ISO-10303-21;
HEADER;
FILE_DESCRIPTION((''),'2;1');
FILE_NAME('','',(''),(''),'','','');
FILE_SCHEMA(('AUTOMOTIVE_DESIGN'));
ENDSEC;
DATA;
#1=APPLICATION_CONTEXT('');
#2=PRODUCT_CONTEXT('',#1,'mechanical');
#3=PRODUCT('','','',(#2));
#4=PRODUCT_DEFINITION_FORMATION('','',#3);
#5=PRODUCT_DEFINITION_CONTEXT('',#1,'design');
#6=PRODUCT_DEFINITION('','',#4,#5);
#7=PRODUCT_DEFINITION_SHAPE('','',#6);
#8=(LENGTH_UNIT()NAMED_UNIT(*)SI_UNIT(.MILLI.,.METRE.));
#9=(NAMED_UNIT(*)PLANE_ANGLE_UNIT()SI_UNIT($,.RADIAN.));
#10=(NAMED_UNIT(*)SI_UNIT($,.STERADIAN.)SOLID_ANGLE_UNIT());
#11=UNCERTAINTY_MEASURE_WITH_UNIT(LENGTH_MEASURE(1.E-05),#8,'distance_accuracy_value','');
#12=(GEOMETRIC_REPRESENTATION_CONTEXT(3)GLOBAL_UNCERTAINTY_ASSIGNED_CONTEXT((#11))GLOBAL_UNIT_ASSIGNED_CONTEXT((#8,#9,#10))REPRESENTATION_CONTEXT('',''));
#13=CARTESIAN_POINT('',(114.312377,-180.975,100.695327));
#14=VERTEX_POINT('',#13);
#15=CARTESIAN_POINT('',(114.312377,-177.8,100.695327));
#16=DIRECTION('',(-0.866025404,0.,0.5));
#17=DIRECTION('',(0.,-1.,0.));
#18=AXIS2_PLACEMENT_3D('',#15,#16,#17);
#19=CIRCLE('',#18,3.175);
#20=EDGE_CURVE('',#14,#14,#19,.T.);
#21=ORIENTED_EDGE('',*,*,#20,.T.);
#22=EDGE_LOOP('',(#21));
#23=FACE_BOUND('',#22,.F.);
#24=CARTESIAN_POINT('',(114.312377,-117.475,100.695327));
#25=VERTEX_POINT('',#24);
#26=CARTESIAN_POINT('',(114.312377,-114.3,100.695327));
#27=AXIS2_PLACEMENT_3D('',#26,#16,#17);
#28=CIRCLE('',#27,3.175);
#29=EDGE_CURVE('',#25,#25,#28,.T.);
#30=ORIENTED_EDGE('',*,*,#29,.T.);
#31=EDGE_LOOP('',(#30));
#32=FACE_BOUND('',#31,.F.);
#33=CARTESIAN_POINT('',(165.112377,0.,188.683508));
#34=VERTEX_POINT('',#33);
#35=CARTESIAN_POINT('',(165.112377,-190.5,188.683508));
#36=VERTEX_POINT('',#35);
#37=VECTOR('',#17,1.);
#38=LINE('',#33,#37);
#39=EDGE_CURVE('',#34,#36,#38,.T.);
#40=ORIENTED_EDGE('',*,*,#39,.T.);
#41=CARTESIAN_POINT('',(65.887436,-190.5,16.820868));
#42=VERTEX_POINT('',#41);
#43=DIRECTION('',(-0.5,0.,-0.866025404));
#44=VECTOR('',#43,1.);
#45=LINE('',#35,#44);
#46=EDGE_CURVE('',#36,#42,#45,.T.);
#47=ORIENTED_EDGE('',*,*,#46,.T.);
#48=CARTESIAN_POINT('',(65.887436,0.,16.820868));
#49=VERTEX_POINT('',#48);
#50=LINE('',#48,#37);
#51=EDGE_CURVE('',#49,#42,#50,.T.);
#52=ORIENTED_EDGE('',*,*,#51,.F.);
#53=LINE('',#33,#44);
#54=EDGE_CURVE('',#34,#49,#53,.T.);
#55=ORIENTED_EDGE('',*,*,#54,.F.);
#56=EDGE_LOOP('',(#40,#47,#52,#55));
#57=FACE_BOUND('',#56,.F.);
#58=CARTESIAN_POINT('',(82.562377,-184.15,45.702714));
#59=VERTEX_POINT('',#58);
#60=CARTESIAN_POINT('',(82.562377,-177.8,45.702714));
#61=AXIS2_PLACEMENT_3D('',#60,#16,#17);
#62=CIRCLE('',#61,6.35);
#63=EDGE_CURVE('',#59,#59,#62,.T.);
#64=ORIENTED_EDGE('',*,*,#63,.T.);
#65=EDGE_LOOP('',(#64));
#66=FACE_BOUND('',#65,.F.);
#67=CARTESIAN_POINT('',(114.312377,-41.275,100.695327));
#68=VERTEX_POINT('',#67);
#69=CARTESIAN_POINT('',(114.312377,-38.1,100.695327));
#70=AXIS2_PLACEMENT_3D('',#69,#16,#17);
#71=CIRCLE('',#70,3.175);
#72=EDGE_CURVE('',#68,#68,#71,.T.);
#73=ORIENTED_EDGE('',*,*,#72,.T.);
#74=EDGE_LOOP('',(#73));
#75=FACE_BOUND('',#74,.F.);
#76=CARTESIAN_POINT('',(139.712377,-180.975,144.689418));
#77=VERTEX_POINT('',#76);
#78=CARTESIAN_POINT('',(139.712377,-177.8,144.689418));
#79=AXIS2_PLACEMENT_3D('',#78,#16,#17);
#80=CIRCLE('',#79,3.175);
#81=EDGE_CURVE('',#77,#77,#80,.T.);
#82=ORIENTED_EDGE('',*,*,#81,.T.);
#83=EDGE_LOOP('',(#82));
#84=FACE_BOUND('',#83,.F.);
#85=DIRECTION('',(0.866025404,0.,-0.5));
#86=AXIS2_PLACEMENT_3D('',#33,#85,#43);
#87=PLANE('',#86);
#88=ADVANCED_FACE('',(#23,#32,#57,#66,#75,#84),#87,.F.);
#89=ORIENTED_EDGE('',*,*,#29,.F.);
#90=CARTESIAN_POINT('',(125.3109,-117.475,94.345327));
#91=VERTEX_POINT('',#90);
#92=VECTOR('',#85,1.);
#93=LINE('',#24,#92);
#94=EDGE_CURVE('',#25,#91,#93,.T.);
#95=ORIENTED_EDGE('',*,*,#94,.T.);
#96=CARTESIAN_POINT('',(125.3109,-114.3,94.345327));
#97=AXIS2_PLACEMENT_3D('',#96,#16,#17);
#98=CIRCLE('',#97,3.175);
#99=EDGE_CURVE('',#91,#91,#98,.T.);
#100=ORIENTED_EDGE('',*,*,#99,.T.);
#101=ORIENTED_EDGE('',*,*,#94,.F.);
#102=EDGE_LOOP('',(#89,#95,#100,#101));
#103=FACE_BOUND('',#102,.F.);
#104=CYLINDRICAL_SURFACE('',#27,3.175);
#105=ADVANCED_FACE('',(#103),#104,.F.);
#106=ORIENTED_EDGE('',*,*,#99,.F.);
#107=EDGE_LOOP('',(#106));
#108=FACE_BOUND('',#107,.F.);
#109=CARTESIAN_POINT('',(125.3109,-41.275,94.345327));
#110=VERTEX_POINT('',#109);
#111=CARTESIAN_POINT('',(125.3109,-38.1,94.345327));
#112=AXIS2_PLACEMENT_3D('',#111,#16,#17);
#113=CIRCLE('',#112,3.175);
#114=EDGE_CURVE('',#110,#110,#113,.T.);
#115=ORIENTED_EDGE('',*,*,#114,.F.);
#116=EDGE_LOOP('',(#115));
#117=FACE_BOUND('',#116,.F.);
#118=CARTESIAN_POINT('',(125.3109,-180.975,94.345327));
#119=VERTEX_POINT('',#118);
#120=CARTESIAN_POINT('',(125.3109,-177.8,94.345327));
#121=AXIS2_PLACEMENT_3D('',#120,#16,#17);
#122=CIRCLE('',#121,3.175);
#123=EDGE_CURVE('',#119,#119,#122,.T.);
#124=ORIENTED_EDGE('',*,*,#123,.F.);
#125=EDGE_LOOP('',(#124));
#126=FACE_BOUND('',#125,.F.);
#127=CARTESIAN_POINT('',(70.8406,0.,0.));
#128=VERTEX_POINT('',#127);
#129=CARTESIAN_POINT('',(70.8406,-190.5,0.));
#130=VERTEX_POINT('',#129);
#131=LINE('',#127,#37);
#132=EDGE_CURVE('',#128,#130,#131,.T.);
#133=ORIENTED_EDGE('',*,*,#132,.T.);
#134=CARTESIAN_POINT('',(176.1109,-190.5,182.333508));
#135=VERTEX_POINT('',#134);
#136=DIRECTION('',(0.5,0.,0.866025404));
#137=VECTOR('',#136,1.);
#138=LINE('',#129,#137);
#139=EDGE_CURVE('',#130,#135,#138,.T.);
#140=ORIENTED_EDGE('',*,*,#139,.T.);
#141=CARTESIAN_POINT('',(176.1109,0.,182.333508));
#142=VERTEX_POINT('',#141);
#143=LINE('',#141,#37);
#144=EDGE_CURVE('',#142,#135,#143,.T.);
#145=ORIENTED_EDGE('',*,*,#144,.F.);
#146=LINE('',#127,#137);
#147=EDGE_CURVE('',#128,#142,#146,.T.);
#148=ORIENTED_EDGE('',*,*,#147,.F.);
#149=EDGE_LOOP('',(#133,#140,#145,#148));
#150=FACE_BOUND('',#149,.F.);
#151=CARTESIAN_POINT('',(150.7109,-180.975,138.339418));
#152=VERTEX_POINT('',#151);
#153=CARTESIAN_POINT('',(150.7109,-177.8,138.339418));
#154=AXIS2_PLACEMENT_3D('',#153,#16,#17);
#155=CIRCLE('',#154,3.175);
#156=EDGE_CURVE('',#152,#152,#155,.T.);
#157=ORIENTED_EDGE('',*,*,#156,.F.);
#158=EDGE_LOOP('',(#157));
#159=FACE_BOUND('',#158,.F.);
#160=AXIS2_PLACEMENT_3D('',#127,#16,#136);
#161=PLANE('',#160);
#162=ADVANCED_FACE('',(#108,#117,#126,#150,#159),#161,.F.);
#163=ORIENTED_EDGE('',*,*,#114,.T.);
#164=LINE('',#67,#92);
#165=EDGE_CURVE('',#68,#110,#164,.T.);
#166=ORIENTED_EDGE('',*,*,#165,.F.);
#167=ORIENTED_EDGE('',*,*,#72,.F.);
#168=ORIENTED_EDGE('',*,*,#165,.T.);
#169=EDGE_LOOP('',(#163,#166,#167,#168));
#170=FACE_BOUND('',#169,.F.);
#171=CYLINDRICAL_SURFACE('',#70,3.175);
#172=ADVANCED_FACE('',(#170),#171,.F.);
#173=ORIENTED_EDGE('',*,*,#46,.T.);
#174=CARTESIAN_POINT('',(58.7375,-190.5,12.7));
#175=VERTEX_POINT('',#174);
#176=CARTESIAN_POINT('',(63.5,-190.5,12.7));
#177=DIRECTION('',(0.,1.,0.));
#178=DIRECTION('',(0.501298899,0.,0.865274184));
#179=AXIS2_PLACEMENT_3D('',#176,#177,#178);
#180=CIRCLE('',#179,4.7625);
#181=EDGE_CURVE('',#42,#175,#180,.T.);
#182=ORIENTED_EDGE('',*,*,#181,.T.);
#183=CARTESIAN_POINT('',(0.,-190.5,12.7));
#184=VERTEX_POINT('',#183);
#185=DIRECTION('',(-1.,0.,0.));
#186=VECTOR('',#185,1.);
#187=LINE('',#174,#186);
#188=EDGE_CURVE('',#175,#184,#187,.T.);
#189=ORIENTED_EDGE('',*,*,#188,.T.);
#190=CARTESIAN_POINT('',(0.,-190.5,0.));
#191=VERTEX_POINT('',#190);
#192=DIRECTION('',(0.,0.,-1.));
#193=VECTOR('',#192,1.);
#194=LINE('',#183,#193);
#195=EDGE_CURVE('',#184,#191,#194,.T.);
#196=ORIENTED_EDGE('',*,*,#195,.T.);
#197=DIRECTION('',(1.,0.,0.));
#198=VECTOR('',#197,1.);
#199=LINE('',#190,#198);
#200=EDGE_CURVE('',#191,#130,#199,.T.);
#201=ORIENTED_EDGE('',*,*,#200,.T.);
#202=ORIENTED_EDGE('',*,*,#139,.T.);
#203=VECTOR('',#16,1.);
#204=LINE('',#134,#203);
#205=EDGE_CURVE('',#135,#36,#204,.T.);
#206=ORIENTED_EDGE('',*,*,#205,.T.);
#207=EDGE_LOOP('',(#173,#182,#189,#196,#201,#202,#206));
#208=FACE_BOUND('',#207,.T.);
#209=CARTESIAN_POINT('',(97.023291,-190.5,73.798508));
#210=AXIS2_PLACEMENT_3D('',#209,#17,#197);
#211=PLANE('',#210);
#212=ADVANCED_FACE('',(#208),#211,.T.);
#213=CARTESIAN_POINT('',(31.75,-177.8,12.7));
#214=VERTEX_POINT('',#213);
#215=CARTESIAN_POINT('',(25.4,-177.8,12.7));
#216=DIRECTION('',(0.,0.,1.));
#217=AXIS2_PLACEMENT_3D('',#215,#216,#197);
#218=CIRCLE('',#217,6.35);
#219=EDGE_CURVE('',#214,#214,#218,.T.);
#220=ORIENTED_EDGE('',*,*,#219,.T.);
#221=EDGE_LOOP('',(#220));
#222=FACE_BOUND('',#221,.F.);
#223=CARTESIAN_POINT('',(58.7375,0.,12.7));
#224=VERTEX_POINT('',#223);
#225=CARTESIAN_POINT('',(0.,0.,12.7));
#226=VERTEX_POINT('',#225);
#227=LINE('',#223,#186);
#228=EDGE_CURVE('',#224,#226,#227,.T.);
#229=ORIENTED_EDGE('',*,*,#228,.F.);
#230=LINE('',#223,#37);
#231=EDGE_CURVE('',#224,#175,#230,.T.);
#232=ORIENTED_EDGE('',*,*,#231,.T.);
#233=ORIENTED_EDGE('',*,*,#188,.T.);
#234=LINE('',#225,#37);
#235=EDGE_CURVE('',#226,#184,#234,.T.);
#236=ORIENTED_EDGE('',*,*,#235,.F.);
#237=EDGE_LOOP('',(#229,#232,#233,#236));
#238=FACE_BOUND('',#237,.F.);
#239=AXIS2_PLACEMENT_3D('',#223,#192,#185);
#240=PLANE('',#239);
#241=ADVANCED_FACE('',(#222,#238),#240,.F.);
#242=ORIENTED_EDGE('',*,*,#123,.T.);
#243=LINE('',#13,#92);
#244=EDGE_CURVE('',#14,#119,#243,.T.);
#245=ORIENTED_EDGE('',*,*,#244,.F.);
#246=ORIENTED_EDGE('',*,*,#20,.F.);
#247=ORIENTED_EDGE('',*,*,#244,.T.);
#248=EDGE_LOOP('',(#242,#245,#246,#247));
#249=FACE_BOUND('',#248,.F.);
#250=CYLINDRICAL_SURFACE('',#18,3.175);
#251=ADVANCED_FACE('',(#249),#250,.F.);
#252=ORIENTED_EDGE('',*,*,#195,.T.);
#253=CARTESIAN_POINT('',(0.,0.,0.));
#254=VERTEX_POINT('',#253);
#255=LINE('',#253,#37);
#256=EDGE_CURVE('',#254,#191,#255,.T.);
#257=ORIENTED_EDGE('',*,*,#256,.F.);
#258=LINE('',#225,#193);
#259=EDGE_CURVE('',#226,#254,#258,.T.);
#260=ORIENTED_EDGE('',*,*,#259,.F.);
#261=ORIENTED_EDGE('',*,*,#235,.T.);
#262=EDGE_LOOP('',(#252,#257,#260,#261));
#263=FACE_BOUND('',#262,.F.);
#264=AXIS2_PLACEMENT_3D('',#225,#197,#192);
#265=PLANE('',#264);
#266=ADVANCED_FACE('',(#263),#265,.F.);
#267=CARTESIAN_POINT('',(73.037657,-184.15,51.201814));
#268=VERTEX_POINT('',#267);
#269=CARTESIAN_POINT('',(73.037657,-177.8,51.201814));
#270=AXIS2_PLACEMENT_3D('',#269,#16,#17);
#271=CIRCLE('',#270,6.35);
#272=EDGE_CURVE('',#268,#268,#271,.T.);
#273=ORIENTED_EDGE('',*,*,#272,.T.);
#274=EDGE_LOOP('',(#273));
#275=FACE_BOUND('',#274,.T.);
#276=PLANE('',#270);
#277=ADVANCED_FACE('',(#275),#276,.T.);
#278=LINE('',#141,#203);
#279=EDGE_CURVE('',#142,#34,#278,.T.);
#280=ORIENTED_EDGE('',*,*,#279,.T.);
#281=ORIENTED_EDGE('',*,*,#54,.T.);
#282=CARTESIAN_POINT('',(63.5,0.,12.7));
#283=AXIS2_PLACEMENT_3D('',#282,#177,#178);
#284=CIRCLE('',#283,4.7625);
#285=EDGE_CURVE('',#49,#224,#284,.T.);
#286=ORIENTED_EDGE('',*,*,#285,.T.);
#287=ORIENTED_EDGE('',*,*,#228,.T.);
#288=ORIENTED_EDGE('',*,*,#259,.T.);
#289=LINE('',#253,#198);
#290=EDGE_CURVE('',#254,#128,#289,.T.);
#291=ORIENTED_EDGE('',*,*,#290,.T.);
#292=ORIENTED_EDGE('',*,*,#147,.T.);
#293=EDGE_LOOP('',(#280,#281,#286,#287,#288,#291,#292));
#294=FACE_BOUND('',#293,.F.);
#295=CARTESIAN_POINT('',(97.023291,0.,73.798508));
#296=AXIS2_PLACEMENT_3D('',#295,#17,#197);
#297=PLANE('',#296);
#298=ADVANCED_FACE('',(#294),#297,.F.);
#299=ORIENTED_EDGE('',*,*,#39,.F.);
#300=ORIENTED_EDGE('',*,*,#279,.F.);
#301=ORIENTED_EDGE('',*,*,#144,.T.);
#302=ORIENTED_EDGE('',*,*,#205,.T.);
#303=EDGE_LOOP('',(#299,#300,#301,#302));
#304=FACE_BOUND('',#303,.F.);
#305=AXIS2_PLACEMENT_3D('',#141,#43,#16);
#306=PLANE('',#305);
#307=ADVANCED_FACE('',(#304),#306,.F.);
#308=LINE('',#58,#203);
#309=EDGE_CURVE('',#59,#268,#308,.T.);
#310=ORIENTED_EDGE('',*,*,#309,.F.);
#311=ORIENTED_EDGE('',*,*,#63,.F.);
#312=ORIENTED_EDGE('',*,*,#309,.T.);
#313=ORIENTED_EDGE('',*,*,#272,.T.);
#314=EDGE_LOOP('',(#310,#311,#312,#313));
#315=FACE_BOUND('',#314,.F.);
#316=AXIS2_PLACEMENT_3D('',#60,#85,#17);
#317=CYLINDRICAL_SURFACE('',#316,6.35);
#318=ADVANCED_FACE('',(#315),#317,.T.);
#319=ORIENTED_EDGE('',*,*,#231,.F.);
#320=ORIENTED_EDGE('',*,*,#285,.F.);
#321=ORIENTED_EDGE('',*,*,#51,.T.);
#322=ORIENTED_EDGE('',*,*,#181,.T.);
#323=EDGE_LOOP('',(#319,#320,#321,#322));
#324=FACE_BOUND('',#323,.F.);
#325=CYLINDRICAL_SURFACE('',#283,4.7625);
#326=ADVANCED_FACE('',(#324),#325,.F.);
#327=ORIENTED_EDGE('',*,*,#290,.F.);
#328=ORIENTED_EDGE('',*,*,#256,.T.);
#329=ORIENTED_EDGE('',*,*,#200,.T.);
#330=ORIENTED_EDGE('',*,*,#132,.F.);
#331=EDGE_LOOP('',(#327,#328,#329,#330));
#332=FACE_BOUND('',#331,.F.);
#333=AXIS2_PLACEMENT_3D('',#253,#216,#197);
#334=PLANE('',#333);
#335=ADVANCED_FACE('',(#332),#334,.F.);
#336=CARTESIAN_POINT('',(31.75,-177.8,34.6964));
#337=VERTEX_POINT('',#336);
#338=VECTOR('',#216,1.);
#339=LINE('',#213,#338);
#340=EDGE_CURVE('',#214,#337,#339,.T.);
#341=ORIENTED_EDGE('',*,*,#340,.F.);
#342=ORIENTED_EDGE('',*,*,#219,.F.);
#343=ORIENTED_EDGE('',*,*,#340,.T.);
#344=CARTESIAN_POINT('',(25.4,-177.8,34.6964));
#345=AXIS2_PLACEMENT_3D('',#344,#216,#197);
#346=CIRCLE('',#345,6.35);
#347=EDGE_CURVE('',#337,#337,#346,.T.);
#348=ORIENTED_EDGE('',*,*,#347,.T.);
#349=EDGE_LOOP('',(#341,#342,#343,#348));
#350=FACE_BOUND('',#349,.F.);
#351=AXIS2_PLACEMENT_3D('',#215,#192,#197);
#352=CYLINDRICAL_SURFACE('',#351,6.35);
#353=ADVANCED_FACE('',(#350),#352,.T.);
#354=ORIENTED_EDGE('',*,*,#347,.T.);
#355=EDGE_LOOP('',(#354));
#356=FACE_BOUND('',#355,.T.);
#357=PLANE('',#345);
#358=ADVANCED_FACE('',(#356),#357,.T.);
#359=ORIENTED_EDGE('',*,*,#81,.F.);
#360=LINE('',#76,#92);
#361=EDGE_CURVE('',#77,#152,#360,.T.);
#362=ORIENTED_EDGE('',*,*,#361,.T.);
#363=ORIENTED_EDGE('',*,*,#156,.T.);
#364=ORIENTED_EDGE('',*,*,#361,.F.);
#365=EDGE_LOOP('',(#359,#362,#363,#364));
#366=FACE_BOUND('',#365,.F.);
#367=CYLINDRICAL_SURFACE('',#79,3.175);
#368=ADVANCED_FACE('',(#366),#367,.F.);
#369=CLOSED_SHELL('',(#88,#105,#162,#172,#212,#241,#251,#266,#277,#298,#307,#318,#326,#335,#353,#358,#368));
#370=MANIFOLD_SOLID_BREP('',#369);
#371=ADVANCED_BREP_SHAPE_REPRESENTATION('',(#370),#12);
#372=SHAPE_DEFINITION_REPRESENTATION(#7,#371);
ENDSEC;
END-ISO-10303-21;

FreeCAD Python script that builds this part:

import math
import FreeCAD as App
import Part
import Sketcher
Q = App.Units.Quantity

doc = App.newDocument("Part")
body = doc.addObject("PartDesign::Body", "Body")

# Sketch on XZ plane
sketch1 = body.newObject("Sketcher::SketchObject", "Sketch")
sketch1.AttachmentSupport = (doc.getObject("XZ_Plane"), [""])
sketch1.MapMode = "FlatFace"
sketch1.addGeometry([
    Part.LineSegment(App.Vector(0, 12.7, 0), App.Vector(0, 0, 0)),  # 0
    Part.LineSegment(App.Vector(0, 0, 0), App.Vector(70.8, 0, 0)),  # 1
    Part.LineSegment(App.Vector(70.8, 0, 0), App.Vector(176.1, 182.3, 0)),  # 2
    Part.LineSegment(App.Vector(176.1, 182.3, 0), App.Vector(165.1, 188.7, 0)),  # 3
    Part.LineSegment(App.Vector(165.1, 188.7, 0), App.Vector(65.9, 16.8, 0)),  # 4
    Part.ArcOfCircle(Part.Circle(App.Vector(63.5, 12.7, 0), App.Vector(0, 0, 1), 4.8), math.radians(180), math.radians(420)),  # 5
    Part.LineSegment(App.Vector(58.7, 12.7, 0), App.Vector(0, 12.7, 0)),  # 6
], False)
sketch1.addConstraint([
    Sketcher.Constraint("Coincident", 0, 2, 1, 1),
    Sketcher.Constraint("Coincident", 1, 2, 2, 1),
    Sketcher.Constraint("Coincident", 2, 2, 3, 1),
    Sketcher.Constraint("Coincident", 3, 2, 4, 1),
    Sketcher.Constraint("Coincident", 4, 2, 5, 2),
    Sketcher.Constraint("Coincident", 5, 1, 6, 1),
    Sketcher.Constraint("Coincident", 6, 2, 0, 1),
    Sketcher.Constraint("Vertical", 0),
    Sketcher.Constraint("Horizontal", 1),
    Sketcher.Constraint("Horizontal", 6),
    Sketcher.Constraint("Coincident", 0, 2, -1, 1),
    Sketcher.Constraint("Perpendicular", 2, 3),
    Sketcher.Constraint("Perpendicular", 3, 4),
    Sketcher.Constraint("DistanceY", 0, 2, 0, 1, Q("0.5 in")),
    Sketcher.Constraint("Angle", 2, Q("60 deg")),
    Sketcher.Constraint("Radius", 5, Q("0.1875 in")),
    Sketcher.Constraint("Distance", 3, Q("0.5 in")),
    Sketcher.Constraint("DistanceX", -1, 1, 5, 3, Q("2.5 in")),
    Sketcher.Constraint("DistanceY", -1, 1, 5, 3, Q("0.5 in")),
    Sketcher.Constraint("DistanceX", 1, 1, 1, 2, Q("2.789 in")),
    Sketcher.Constraint("Distance", 2, Q("8.289 in")),
])
pad1 = body.newObject("PartDesign::Pad", "Pad")
pad1.Profile = sketch1
pad1.Length = Q("7.5 in")

# Sketch on an angled plane
sketch2 = body.newObject("Sketcher::SketchObject", "Sketch001")
sketch2.Placement = App.Placement(App.Vector(42.131927, 0, -24.32488), App.Rotation(App.Vector(0, -1, 0), App.Vector(0.5, 0, 0.866025404), App.Vector(-0.866025404, 0, 0.5), "ZXY"))
sketch2.addGeometry([
    Part.Circle(App.Vector(38.1, 144.4, 0), App.Vector(0, 0, 1), 3.2),
    Part.Circle(App.Vector(114.3, 144.4, 0), App.Vector(0, 0, 1), 3.2),
    Part.Circle(App.Vector(177.8, 144.4, 0), App.Vector(0, 0, 1), 3.2),
    Part.Circle(App.Vector(177.8, 195.2, 0), App.Vector(0, 0, 1), 3.2),
], False)
sketch2.addConstraint([
    Sketcher.Constraint("Equal", 0, 1),
    Sketcher.Constraint("Equal", 1, 2),
    Sketcher.Constraint("Equal", 2, 3),
    Sketcher.Constraint("Horizontal", 0, 3, 1, 3),
    Sketcher.Constraint("Horizontal", 1, 3, 2, 3),
    Sketcher.Constraint("Vertical", 2, 3, 3, 3),
    Sketcher.Constraint("Diameter", 0, Q("0.25 in")),
    Sketcher.Constraint("DistanceX", -1, 1, 2, 3, Q("7 in")),
    Sketcher.Constraint("DistanceX", 0, 3, 1, 3, Q("3 in")),
    Sketcher.Constraint("DistanceY", 2, 3, 3, 3, Q("2 in")),
    Sketcher.Constraint("DistanceX", -1, 1, 0, 3, Q("1.5 in")),
    Sketcher.Constraint("DistanceY", -1, 1, 0, 3, Q("5.6835 in")),
])
pocket1 = body.newObject("PartDesign::Pocket", "Pocket")
pocket1.Profile = sketch2
pocket1.Length = Q("1 in")

# Sketch on an angled plane
sketch3 = body.newObject("Sketcher::SketchObject", "Sketch002")
sketch3.Placement = App.Placement(App.Vector(42.131927, 0, -24.32488), App.Rotation(App.Vector(0, -1, 0), App.Vector(0.5, 0, 0.866025404), App.Vector(-0.866025404, 0, 0.5), "ZXY"))
sketch3.addGeometry(Part.Circle(App.Vector(178, 81, 0), App.Vector(0, 0, 1), 6), False)
sketch3.addConstraint([
    Sketcher.Constraint("Diameter", 0, Q("0.5 in")),
    Sketcher.Constraint("DistanceX", -1, 1, 0, 3, Q("7 in")),
    Sketcher.Constraint("DistanceY", -1, 1, 0, 3, Q("3.1835 in")),
])
pad2 = body.newObject("PartDesign::Pad", "Pad001")
pad2.Profile = sketch3
pad2.Length = Q("0.433 in")

# Sketch on XY plane
sketch4 = body.newObject("Sketcher::SketchObject", "Sketch003")
sketch4.AttachmentSupport = (doc.getObject("XY_Plane"), [""])
sketch4.MapMode = "FlatFace"
sketch4.AttachmentOffset = App.Placement(App.Vector(0, 0, 0.5 * 25.4), App.Rotation())
sketch4.addGeometry(Part.Circle(App.Vector(25, -178, 0), App.Vector(0, 0, 1), 6), False)
sketch4.addConstraint([
    Sketcher.Constraint("Diameter", 0, Q("0.5 in")),
    Sketcher.Constraint("DistanceX", -1, 1, 0, 3, Q("1 in")),
    Sketcher.Constraint("DistanceY", 0, 3, -1, 1, Q("7 in")),
])
pad3 = body.newObject("PartDesign::Pad", "Pad002")
pad3.Profile = sketch4
pad3.Length = Q("0.866 in")

doc.recompute()
